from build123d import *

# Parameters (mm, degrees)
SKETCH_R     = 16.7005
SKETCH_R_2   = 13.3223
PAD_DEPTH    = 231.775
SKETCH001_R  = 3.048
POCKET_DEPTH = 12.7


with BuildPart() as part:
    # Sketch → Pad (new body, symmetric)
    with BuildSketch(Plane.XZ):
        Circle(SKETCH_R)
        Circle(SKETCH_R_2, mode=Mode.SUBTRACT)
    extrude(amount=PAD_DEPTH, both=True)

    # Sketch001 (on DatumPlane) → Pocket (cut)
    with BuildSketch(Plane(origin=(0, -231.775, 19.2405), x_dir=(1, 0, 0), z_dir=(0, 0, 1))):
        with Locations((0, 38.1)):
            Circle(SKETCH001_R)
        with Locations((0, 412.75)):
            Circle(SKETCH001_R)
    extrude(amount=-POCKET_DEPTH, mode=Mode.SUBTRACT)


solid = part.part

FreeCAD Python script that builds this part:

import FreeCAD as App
import Part
import Sketcher
from FreeCAD import Vector
Q = App.Units.Quantity

doc = App.newDocument("Part")
body = doc.addObject("PartDesign::Body", "Body")

# Sketch on XZ plane
sketch1 = body.newObject("Sketcher::SketchObject", "Sketch")
sketch1.AttachmentSupport = (doc.getObject("XZ_Plane"), [""])
sketch1.MapMode = "FlatFace"
sketch1.addGeometry([
    Part.Circle(Vector(0, 0, 0), Vector(0, 0, 1), 16.7005),
    Part.Circle(Vector(0, 0, 0), Vector(0, 0, 1), 13.3223),
], False)
sketch1.addConstraint([
    Sketcher.Constraint("Coincident", 0, 3, -1, 1),
    Sketcher.Constraint("Coincident", 1, 3, -1, 1),
    Sketcher.Constraint("Diameter", 0, Q("1.315 in")),
    Sketcher.Constraint("Diameter", 1, Q("1.049 in")),
])
pad1 = body.newObject("PartDesign::Pad", "Pad")
pad1.Profile = sketch1
pad1.Length = Q("18.25 in")
pad1.Midplane = True

# Sketch on XY plane
sketch2 = body.newObject("Sketcher::SketchObject", "Sketch001")
sketch2.AttachmentSupport = (doc.getObject("XY_Plane"), [""])
sketch2.MapMode = "FlatFace"
sketch2.AttachmentOffset = App.Placement(Vector(0, 0, 0.7575 * 25.4), App.Rotation())
sketch2.addGeometry([
    Part.Circle(Vector(0, -193.675, 0), Vector(0, 0, 1), 3.048),
    Part.Circle(Vector(0, 180.975, 0), Vector(0, 0, 1), 3.048),
], False)
sketch2.addConstraint([
    Sketcher.Constraint("Equal", 0, 1),
    Sketcher.Constraint("PointOnObject", 0, 3, -2),
    Sketcher.Constraint("PointOnObject", 1, 3, -2),
    Sketcher.Constraint("Diameter", 0, Q("0.24 in")),
    Sketcher.Constraint("DistanceY", 0, 3, 1, 3, Q("14.75 in")),
    Sketcher.Constraint("DistanceY", 0, 3, -1, 1, Q("7.625 in")),
])
pocket1 = body.newObject("PartDesign::Pocket", "Pocket")
pocket1.Profile = sketch2
pocket1.Length = Q("0.5 in")

doc.recompute()
